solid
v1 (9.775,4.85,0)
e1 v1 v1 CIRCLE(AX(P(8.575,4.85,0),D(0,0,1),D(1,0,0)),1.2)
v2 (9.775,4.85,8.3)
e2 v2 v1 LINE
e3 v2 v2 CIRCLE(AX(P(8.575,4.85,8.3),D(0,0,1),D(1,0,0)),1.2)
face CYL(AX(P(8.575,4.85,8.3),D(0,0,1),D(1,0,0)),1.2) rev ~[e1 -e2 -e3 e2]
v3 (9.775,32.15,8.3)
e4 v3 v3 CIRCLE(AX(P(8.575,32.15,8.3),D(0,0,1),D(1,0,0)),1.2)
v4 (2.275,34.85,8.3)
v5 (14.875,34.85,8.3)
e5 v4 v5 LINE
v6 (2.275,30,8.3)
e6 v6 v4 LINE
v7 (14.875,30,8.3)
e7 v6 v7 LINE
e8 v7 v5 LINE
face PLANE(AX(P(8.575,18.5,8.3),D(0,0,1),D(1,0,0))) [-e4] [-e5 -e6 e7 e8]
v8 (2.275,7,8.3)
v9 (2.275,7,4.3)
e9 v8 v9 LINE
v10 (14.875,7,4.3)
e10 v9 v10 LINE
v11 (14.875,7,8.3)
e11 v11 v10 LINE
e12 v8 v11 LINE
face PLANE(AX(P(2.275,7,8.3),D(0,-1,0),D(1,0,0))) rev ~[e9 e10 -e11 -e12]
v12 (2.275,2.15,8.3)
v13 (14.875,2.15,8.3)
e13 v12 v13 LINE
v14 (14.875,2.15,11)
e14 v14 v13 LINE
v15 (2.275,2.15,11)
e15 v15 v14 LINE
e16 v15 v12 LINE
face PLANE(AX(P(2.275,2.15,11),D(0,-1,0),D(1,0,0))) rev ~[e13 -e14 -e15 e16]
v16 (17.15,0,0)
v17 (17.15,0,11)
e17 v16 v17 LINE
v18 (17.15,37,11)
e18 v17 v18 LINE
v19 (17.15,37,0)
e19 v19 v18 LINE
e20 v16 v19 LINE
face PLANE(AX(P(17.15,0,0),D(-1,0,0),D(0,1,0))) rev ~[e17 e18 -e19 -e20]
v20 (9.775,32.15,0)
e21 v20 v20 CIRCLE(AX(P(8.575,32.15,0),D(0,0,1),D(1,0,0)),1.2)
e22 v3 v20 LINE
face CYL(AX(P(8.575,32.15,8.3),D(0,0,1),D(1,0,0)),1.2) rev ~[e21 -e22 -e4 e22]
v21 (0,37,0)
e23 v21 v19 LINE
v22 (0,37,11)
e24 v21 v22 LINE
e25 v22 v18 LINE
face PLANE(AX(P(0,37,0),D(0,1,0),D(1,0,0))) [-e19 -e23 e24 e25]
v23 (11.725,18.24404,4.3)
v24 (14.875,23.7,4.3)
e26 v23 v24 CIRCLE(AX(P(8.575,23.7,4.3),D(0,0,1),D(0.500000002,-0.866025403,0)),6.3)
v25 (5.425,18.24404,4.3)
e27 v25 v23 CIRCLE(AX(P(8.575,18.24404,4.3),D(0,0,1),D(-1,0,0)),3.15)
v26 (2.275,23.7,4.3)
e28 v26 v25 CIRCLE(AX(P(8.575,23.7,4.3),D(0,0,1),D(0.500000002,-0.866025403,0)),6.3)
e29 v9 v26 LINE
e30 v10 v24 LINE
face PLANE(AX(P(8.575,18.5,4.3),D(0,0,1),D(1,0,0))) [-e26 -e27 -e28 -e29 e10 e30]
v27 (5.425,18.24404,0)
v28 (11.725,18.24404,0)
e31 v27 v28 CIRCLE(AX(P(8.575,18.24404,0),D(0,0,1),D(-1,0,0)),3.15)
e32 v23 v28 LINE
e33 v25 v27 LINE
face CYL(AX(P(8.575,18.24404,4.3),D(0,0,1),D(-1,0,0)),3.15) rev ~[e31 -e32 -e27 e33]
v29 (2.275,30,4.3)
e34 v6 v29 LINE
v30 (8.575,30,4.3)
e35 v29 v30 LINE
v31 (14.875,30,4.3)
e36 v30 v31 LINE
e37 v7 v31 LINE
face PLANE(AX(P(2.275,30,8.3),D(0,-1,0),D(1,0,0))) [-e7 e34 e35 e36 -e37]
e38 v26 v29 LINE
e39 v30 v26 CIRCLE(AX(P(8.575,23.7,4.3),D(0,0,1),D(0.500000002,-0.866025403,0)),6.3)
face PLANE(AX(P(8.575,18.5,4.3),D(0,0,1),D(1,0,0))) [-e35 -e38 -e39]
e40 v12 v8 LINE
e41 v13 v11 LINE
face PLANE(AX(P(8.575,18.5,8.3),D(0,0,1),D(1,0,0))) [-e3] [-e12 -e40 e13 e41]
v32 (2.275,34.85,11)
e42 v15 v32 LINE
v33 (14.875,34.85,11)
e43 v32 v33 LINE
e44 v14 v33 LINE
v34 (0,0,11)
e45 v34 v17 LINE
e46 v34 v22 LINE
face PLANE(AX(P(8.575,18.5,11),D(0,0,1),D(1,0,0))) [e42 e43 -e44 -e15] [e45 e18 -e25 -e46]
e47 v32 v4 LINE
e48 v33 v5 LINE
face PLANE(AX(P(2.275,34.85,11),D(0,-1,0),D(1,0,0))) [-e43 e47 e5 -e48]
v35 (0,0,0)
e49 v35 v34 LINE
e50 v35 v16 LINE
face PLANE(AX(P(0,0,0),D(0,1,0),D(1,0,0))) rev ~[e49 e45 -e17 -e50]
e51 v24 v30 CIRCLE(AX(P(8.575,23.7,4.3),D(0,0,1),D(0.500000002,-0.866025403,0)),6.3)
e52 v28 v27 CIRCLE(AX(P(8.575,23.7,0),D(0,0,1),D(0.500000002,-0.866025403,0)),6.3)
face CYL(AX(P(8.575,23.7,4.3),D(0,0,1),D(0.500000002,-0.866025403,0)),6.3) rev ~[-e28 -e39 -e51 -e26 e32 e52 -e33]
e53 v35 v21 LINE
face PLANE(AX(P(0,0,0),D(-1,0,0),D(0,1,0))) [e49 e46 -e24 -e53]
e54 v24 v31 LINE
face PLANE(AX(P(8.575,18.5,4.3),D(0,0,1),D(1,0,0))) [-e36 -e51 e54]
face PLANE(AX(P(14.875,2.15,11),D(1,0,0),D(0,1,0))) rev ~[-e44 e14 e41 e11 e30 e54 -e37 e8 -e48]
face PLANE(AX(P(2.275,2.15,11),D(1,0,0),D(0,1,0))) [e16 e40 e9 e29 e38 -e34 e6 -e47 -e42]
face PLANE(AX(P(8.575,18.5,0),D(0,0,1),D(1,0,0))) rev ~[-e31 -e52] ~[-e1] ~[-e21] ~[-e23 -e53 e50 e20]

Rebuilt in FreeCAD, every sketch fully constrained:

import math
import FreeCAD as App
import Part
import Sketcher

V = App.Vector
Q = App.Units.Quantity

doc = App.newDocument("Part")
params = doc.addObject("Spreadsheet::Sheet", "Params")
for row, (alias, value) in enumerate([
    ("sketch1_height", "37 mm"),
    ("sketch1_width", "17.15 mm"),
    ("pad1_length", "11 mm"),
    ("sketch2_width", "12.6 mm"),
    ("sketch2_height", "32.7 mm"),
    ("pocket1_length", "2.7 mm"),
    ("sketch3_height", "23 mm"),
    ("sketch3_width", "12.6 mm"),
    ("pocket2_length", "4 mm"),
    ("sketch4_radius", "6.3 mm"),
    ("sketch4_radius2", "3.15 mm"),
    ("pocket3_length", "4.3 mm"),
    ("sketch5_diameter", "2.4 mm"),
], start=1):
    params.set(f"A{row}", alias)
    params.set(f"B{row}", "=" + value)
    params.setAlias(f"B{row}", alias)

body = doc.addObject("PartDesign::Body", "Body")

sketch1 = doc.addObject("Sketcher::SketchObject", "Sketch")
body.addObject(sketch1)
sketch1.AttachmentSupport = (doc.XY_Plane, [""])
sketch1.MapMode = "FlatFace"
sketch1.addGeometry([
    Part.LineSegment(V(0, 37, 0), V(0, 0, 0)),
    Part.LineSegment(V(0, 0, 0), V(17, 0, 0)),
    Part.LineSegment(V(17, 0, 0), V(17, 37, 0)),
    Part.LineSegment(V(17, 37, 0), V(0, 37, 0)),
], False)
sketch1.addConstraint([
    Sketcher.Constraint("Coincident", 0, 2, 1, 1),
    Sketcher.Constraint("Coincident", 1, 2, 2, 1),
    Sketcher.Constraint("Coincident", 2, 2, 3, 1),
    Sketcher.Constraint("Coincident", 3, 2, 0, 1),
    Sketcher.Constraint("Vertical", 0),
    Sketcher.Constraint("Horizontal", 1),
    Sketcher.Constraint("Vertical", 2),
    Sketcher.Constraint("Horizontal", 3),
    Sketcher.Constraint("Coincident", 0, 2, -1, 1),
    Sketcher.Constraint("DistanceY", 0, 2, 0, 1, Q("37 mm")),
    Sketcher.Constraint("DistanceX", 1, 1, 1, 2, Q("17.15 mm")),
])
sketch1.setExpression("Constraints[9]", "Params.sketch1_height")
sketch1.setExpression("Constraints[10]", "Params.sketch1_width")
pad1 = doc.addObject("PartDesign::Pad", "Pad")
body.addObject(pad1)
pad1.Profile = sketch1
pad1.setExpression("Length", "Params.pad1_length")

sketch2 = doc.addObject("Sketcher::SketchObject", "Sketch001")
body.addObject(sketch2)
sketch2.AttachmentSupport = (doc.XY_Plane, [""])
sketch2.MapMode = "FlatFace"
sketch2.AttachmentOffset = App.Placement(V(0, 0, 11), App.Rotation())
sketch2.addGeometry([
    Part.LineSegment(V(2, 35, 0), V(2, 2, 0)),
    Part.LineSegment(V(2, 2, 0), V(15, 2, 0)),
    Part.LineSegment(V(15, 2, 0), V(15, 35, 0)),
    Part.LineSegment(V(15, 35, 0), V(2, 35, 0)),
], False)
sketch2.addConstraint([
    Sketcher.Constraint("Coincident", 0, 2, 1, 1),
    Sketcher.Constraint("Coincident", 1, 2, 2, 1),
    Sketcher.Constraint("Coincident", 2, 2, 3, 1),
    Sketcher.Constraint("Coincident", 3, 2, 0, 1),
    Sketcher.Constraint("Vertical", 0),
    Sketcher.Constraint("Horizontal", 1),
    Sketcher.Constraint("Vertical", 2),
    Sketcher.Constraint("Horizontal", 3),
    Sketcher.Constraint("DistanceX", 1, 1, 1, 2, Q("12.6 mm")),
    Sketcher.Constraint("DistanceY", 0, 2, 0, 1, Q("32.7 mm")),
    Sketcher.Constraint("DistanceY", -1, 1, 0, 2, Q("2.15 mm")),
    Sketcher.Constraint("DistanceX", -1, 1, 0, 2, Q("2.275 mm")),
])
sketch2.setExpression("Constraints[8]", "Params.sketch2_width")
sketch2.setExpression("Constraints[9]", "Params.sketch2_height")
pocket1 = doc.addObject("PartDesign::Pocket", "Pocket")
body.addObject(pocket1)
pocket1.Profile = sketch2
pocket1.setExpression("Length", "Params.pocket1_length")

sketch3 = doc.addObject("Sketcher::SketchObject", "Sketch002")
body.addObject(sketch3)
sketch3.AttachmentSupport = (doc.XY_Plane, [""])
sketch3.MapMode = "FlatFace"
sketch3.AttachmentOffset = App.Placement(V(0, 0, 8.3), App.Rotation())
sketch3.addGeometry([
    Part.LineSegment(V(2, 30, 0), V(2, 7, 0)),
    Part.LineSegment(V(2, 7, 0), V(15, 7, 0)),
    Part.LineSegment(V(15, 7, 0), V(15, 30, 0)),
    Part.LineSegment(V(15, 30, 0), V(2, 30, 0)),
], False)
sketch3.addConstraint([
    Sketcher.Constraint("Coincident", 0, 2, 1, 1),
    Sketcher.Constraint("Coincident", 1, 2, 2, 1),
    Sketcher.Constraint("Coincident", 2, 2, 3, 1),
    Sketcher.Constraint("Coincident", 3, 2, 0, 1),
    Sketcher.Constraint("Vertical", 0),
    Sketcher.Constraint("Horizontal", 1),
    Sketcher.Constraint("Vertical", 2),
    Sketcher.Constraint("Horizontal", 3),
    Sketcher.Constraint("DistanceY", 0, 2, 0, 1, Q("23 mm")),
    Sketcher.Constraint("DistanceX", 1, 1, 1, 2, Q("12.6 mm")),
    Sketcher.Constraint("DistanceY", -1, 1, 0, 2, Q("7 mm")),
    Sketcher.Constraint("DistanceX", -1, 1, 0, 2, Q("2.275 mm")),
])
sketch3.setExpression("Constraints[8]", "Params.sketch3_height")
sketch3.setExpression("Constraints[9]", "Params.sketch3_width")
pocket2 = doc.addObject("PartDesign::Pocket", "Pocket001")
body.addObject(pocket2)
pocket2.Profile = sketch3
pocket2.setExpression("Length", "Params.pocket2_length")

sketch4 = doc.addObject("Sketcher::SketchObject", "Sketch003")
body.addObject(sketch4)
sketch4.AttachmentSupport = (doc.XY_Plane, [""])
sketch4.MapMode = "FlatFace"
sketch4.AttachmentOffset = App.Placement(V(0, 0, 4.3), App.Rotation())
sketch4.addGeometry([
    Part.ArcOfCircle(Part.Circle(V(8.6, 23.7, 0), V(0, 0, 1), 6.3), math.radians(-60), math.radians(240)),
    Part.ArcOfCircle(Part.Circle(V(8.6, 18.2, 0), V(0, 0, 1), 3.1), math.radians(180), math.radians(360)),
], False)
sketch4.addConstraint([
    Sketcher.Constraint("Coincident", 0, 1, 1, 2),
    Sketcher.Constraint("Coincident", 1, 1, 0, 2),
    Sketcher.Constraint("Horizontal", 1, 3, 0, 1),
    Sketcher.Constraint("Horizontal", 0, 1, 1, 1),
    Sketcher.Constraint("Radius", 0, Q("6.3 mm")),
    Sketcher.Constraint("Radius", 1, Q("3.15 mm")),
    Sketcher.Constraint("DistanceY", -1, 1, 0, 3, Q("23.7 mm")),
    Sketcher.Constraint("DistanceX", -1, 1, 0, 3, Q("8.575 mm")),
])
sketch4.setExpression("Constraints[4]", "Params.sketch4_radius")
sketch4.setExpression("Constraints[5]", "Params.sketch4_radius2")
pocket3 = doc.addObject("PartDesign::Pocket", "Pocket002")
body.addObject(pocket3)
pocket3.Profile = sketch4
pocket3.setExpression("Length", "Params.pocket3_length")

sketch5 = doc.addObject("Sketcher::SketchObject", "Sketch004")
body.addObject(sketch5)
sketch5.AttachmentSupport = (doc.XY_Plane, [""])
sketch5.MapMode = "FlatFace"
sketch5.AttachmentOffset = App.Placement(V(0, 0, 8.3), App.Rotation())
sketch5.addGeometry([
    Part.Circle(V(8.6, 32.1, 0), V(0, 0, 1), 1.2),
    Part.Circle(V(8.6, 4.8, 0), V(0, 0, 1), 1.2),
], False)
sketch5.addConstraint([
    Sketcher.Constraint("Equal", 0, 1),
    Sketcher.Constraint("Vertical", 0, 3, 1, 3),
    Sketcher.Constraint("Diameter", 0, Q("2.4 mm")),
    Sketcher.Constraint("DistanceY", 1, 3, 0, 3, Q("27.3 mm")),
    Sketcher.Constraint("DistanceY", -1, 1, 0, 3, Q("32.15 mm")),
    Sketcher.Constraint("DistanceX", -1, 1, 0, 3, Q("8.575 mm")),
])
sketch5.setExpression("Constraints[2]", "Params.sketch5_diameter")
pocket4 = doc.addObject("PartDesign::Pocket", "Pocket003")
body.addObject(pocket4)
pocket4.Profile = sketch5
pocket4.Type = "ThroughAll"

doc.recompute()
